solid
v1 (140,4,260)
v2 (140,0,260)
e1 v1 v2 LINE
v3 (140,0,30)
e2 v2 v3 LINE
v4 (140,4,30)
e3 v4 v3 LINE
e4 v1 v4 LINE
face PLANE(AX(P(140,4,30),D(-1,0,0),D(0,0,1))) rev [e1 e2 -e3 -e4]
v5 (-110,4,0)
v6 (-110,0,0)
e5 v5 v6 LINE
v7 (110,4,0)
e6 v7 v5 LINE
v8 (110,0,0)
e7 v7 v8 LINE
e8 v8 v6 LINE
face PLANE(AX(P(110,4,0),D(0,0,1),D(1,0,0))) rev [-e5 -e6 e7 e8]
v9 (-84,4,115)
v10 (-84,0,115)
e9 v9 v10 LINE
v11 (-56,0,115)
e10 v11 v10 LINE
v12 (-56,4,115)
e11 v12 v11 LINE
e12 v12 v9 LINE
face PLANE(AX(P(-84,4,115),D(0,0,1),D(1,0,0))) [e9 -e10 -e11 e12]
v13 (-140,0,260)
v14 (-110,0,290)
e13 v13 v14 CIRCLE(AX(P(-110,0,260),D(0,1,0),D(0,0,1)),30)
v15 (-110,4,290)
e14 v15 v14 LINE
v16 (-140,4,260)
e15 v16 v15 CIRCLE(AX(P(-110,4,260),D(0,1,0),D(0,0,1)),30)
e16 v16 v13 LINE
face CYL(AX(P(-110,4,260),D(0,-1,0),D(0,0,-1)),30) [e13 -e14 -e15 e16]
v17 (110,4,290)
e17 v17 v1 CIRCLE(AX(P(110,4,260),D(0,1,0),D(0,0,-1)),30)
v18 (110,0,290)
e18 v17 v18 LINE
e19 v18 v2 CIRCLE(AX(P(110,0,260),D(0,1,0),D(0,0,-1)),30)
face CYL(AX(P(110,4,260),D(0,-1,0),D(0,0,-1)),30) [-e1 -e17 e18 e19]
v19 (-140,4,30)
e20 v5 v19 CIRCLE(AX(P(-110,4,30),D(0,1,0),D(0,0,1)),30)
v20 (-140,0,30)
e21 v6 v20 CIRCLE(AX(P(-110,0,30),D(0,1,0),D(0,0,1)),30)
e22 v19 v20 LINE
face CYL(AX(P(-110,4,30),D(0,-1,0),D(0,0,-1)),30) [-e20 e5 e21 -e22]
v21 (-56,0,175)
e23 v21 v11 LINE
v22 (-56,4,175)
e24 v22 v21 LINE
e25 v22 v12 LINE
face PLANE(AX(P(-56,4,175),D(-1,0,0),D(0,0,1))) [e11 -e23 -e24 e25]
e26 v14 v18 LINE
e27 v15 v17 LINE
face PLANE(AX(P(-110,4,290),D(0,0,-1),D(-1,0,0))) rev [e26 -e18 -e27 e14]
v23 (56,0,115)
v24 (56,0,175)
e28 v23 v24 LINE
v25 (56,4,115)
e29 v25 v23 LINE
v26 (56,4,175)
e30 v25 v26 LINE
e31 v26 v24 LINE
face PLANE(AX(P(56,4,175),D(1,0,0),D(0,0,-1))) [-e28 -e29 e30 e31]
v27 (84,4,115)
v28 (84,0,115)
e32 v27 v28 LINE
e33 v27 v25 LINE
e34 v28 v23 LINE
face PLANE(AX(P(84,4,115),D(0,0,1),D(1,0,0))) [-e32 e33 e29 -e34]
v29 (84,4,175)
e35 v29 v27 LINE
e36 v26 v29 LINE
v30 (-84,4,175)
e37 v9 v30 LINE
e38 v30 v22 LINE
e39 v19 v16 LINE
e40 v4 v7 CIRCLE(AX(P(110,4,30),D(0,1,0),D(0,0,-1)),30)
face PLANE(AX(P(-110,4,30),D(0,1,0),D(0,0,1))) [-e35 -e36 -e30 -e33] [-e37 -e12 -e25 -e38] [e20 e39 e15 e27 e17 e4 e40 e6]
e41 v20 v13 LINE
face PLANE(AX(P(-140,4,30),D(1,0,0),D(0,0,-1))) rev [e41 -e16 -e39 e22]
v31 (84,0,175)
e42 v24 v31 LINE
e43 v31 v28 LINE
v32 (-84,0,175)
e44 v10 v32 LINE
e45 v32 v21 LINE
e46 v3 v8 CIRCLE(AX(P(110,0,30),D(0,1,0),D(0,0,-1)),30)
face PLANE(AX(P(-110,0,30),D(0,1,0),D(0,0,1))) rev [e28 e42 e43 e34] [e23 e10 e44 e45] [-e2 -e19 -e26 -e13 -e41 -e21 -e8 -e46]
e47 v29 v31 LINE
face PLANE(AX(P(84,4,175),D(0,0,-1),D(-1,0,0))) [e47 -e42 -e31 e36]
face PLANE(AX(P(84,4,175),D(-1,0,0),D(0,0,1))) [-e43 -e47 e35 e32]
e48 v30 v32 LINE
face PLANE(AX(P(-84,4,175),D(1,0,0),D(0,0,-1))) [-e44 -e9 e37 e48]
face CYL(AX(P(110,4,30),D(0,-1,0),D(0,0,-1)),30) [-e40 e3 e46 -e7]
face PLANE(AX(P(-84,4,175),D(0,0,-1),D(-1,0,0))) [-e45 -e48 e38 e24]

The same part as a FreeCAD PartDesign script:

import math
import FreeCAD as App
import Part
import Sketcher

V = App.Vector
Q = App.Units.Quantity


def add_polygon(sketch, points):
    """Adds a closed chain of lines whose ends are joined by coincident constraints."""
    first, n = sketch.GeometryCount, len(points)
    for a, b in zip(points, points[1:] + points[:1]):
        sketch.addGeometry(Part.LineSegment(App.Vector(*a, 0), App.Vector(*b, 0)), False)
    for i in range(n):
        sketch.addConstraint(Sketcher.Constraint("Coincident", first + i, 2, first + (i + 1) % n, 1))

doc = App.newDocument("Part")
body = doc.addObject("PartDesign::Body", "Body")

sketch1 = body.newObject("Sketcher::SketchObject", "Sketch")
sketch1.AttachmentSupport = (doc.getObject("XZ_Plane"), [""])
sketch1.MapMode = "FlatFace"
sketch1.addGeometry(Part.LineSegment(V(110, 0, 0), V(-110, 0, 0)), False)
sketch1.addGeometry(Part.ArcOfCircle(Part.Circle(V(-110, 30, 0), V(0, 0, 1), 30), math.radians(180), math.radians(270)), False)
sketch1.addGeometry(Part.LineSegment(V(-140, 30, 0), V(-140, 260, 0)), False)
sketch1.addGeometry(Part.ArcOfCircle(Part.Circle(V(-110, 260, 0), V(0, 0, 1), 30), math.radians(90), math.radians(180)), False)
sketch1.addGeometry(Part.LineSegment(V(-110, 290, 0), V(110, 290, 0)), False)
sketch1.addGeometry(Part.ArcOfCircle(Part.Circle(V(110, 260, 0), V(0, 0, 1), 30), math.radians(0), math.radians(90)), False)
sketch1.addGeometry(Part.LineSegment(V(140, 260, 0), V(140, 30, 0)), False)
sketch1.addGeometry(Part.ArcOfCircle(Part.Circle(V(110, 30, 0), V(0, 0, 1), 30), math.radians(-90), math.radians(0)), False)
add_polygon(sketch1, [(-56, 175), (-84, 175), (-84, 115), (-56, 115)])
add_polygon(sketch1, [(84, 175), (56, 175), (56, 115), (84, 115)])
sketch1.addConstraint(Sketcher.Constraint("Tangent", 0, 2, 1, 2))
sketch1.addConstraint(Sketcher.Constraint("Tangent", 1, 1, 2, 1))
sketch1.addConstraint(Sketcher.Constraint("Tangent", 2, 2, 3, 2))
sketch1.addConstraint(Sketcher.Constraint("Tangent", 3, 1, 4, 1))
sketch1.addConstraint(Sketcher.Constraint("Tangent", 4, 2, 5, 2))
sketch1.addConstraint(Sketcher.Constraint("Tangent", 5, 1, 6, 1))
sketch1.addConstraint(Sketcher.Constraint("Tangent", 6, 2, 7, 2))
sketch1.addConstraint(Sketcher.Constraint("Tangent", 7, 1, 0, 1))
sketch1.addConstraint(Sketcher.Constraint("Horizontal", 0))
sketch1.addConstraint(Sketcher.Constraint("Vertical", 2))
sketch1.addConstraint(Sketcher.Constraint("Horizontal", 4))
sketch1.addConstraint(Sketcher.Constraint("Vertical", 6))
sketch1.addConstraint(Sketcher.Constraint("Horizontal", 8))
sketch1.addConstraint(Sketcher.Constraint("Vertical", 9))
sketch1.addConstraint(Sketcher.Constraint("Horizontal", 10))
sketch1.addConstraint(Sketcher.Constraint("Vertical", 11))
sketch1.addConstraint(Sketcher.Constraint("Horizontal", 12))
sketch1.addConstraint(Sketcher.Constraint("Vertical", 13))
sketch1.addConstraint(Sketcher.Constraint("Horizontal", 14))
sketch1.addConstraint(Sketcher.Constraint("Vertical", 15))
sketch1.addConstraint(Sketcher.Constraint("Equal", 1, 3))
sketch1.addConstraint(Sketcher.Constraint("Equal", 3, 5))
sketch1.addConstraint(Sketcher.Constraint("Equal", 5, 7))
sketch1.addConstraint(Sketcher.Constraint("Symmetric", 0, 2, 7, 1, -1, 1))
sketch1.addConstraint(Sketcher.Constraint("Symmetric", 11, 2, 12, 2, -2))
sketch1.addConstraint(Sketcher.Constraint("Symmetric", 9, 2, 14, 2, -2))
sketch1.addConstraint(Sketcher.Constraint("Radius", 1, Q("30 mm")))
sketch1.addConstraint(Sketcher.Constraint("DistanceX", 0, 2, 0, 1, Q("220 mm")))
sketch1.addConstraint(Sketcher.Constraint("DistanceX", 8, 2, 8, 1, Q("28 mm")))
sketch1.addConstraint(Sketcher.Constraint("DistanceY", 2, 1, 2, 2, Q("230 mm")))
sketch1.addConstraint(Sketcher.Constraint("DistanceY", 9, 2, 9, 1, Q("60 mm")))
sketch1.addConstraint(Sketcher.Constraint("DistanceX", 8, 2, -1, 1, Q("84 mm")))
sketch1.addConstraint(Sketcher.Constraint("DistanceY", -1, 1, 8, 2, Q("175 mm")))
pad1 = body.newObject("PartDesign::Pad", "Pad")
pad1.Profile = sketch1
pad1.Length = 4
pad1.Reversed = True

doc.recompute()
